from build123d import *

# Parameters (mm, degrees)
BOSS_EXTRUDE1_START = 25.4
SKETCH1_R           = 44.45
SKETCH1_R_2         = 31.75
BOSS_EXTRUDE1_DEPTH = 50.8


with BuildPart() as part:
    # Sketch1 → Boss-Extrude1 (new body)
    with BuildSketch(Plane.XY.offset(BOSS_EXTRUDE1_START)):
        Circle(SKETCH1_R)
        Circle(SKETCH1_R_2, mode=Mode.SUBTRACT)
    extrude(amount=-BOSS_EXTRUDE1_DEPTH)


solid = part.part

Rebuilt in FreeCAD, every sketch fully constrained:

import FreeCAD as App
import Part
import Sketcher
from FreeCAD import Vector
Q = App.Units.Quantity

doc = App.newDocument("Part")
params = doc.addObject("Spreadsheet::Sheet", "Params")
for row, (alias, value) in enumerate([
    ("sketch1_diameter", "3.5 in"),
    ("sketch1_diameter2", "2.5 in"),
    ("pad1_length", "2 in"),
], start=1):
    params.set(f"A{row}", alias)
    params.set(f"B{row}", "=" + value)
    params.setAlias(f"B{row}", alias)

body = doc.addObject("PartDesign::Body", "Body")

sketch1 = body.newObject("Sketcher::SketchObject", "Sketch")
sketch1.AttachmentSupport = (doc.getObject("XY_Plane"), [""])
sketch1.MapMode = "FlatFace"
sketch1.AttachmentOffset = App.Placement(Vector(0, 0, 1 * 25.4), App.Rotation())
sketch1.addGeometry([
    Part.Circle(Vector(0, 0, 0), Vector(0, 0, 1), 44),
    Part.Circle(Vector(0, 0, 0), Vector(0, 0, 1), 32),
], False)
sketch1.addConstraint([
    Sketcher.Constraint("Coincident", 0, 3, -1, 1),
    Sketcher.Constraint("Coincident", 1, 3, -1, 1),
    Sketcher.Constraint("Diameter", 0, Q("3.5 in")),
    Sketcher.Constraint("Diameter", 1, Q("2.5 in")),
])
sketch1.setExpression("Constraints[2]", "Params.sketch1_diameter")
sketch1.setExpression("Constraints[3]", "Params.sketch1_diameter2")
pad1 = body.newObject("PartDesign::Pad", "Pad")
pad1.Profile = sketch1
pad1.setExpression("Length", "Params.pad1_length")
pad1.Reversed = True

doc.recompute()
